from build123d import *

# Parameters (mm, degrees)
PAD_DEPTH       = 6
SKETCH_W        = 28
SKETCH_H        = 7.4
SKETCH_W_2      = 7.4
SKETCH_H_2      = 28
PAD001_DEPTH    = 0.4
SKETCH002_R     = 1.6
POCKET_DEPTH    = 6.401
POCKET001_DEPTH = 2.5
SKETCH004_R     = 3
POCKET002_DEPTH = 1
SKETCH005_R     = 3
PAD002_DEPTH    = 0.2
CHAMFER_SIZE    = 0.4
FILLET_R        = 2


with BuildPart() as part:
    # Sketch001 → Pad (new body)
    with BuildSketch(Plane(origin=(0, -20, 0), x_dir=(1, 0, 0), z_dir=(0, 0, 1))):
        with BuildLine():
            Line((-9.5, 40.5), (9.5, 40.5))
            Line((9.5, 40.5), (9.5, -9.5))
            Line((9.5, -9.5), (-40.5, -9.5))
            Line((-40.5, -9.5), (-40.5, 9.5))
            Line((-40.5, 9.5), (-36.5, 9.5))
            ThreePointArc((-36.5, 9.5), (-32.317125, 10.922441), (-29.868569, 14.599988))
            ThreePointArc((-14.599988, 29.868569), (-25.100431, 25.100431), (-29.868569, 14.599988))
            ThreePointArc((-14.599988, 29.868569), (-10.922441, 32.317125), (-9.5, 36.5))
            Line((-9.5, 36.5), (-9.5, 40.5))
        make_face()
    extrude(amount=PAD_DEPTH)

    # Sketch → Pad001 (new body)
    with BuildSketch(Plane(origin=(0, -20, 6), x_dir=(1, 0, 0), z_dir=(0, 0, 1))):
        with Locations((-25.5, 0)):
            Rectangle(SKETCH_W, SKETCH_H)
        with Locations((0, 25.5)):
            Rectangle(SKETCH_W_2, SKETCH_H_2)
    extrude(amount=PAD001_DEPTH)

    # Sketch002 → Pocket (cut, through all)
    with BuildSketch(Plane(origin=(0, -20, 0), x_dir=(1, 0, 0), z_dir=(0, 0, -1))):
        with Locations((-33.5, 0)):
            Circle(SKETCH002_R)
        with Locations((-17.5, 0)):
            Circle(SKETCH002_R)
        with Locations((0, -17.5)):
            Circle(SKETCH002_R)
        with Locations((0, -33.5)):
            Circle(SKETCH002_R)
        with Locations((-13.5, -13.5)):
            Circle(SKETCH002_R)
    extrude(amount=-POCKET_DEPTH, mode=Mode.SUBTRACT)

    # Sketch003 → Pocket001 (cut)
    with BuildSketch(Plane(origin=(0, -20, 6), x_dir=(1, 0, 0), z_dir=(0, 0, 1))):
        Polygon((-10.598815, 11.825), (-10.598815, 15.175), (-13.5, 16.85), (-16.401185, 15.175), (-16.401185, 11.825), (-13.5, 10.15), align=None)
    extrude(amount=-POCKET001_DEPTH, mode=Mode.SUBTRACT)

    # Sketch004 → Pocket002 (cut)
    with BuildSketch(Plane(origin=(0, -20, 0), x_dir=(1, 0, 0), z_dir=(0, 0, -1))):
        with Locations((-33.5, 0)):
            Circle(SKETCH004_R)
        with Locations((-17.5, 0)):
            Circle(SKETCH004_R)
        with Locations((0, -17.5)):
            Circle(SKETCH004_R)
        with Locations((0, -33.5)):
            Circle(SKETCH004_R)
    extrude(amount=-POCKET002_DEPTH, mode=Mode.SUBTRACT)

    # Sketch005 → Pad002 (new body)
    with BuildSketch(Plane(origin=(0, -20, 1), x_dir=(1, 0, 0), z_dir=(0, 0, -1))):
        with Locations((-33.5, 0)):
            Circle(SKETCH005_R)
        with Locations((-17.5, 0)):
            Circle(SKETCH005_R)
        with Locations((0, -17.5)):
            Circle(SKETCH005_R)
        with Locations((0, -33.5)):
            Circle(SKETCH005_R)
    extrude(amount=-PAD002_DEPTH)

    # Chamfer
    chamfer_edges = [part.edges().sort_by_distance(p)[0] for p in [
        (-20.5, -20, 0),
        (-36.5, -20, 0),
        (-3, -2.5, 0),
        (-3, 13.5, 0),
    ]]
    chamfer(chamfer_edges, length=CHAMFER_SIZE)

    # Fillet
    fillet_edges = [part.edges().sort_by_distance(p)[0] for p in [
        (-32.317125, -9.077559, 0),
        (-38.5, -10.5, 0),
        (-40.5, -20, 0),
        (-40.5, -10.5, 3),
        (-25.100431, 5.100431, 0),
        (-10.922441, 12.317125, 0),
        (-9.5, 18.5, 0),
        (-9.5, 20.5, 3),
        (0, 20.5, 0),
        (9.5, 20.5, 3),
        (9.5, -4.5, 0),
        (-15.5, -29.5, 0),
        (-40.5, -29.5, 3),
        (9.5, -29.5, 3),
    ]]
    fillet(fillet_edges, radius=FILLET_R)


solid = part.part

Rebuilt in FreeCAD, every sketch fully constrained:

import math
import FreeCAD as App
import Part
import Sketcher

V = App.Vector
Q = App.Units.Quantity


def edges_at(feature, points):
    """Names of the edges that pass closest to the given points."""
    edges = feature.Shape.Edges
    near = lambda p: min(range(len(edges)), key=lambda i: edges[i].distToShape(Part.Vertex(*p))[0])
    return sorted({f"Edge{near(p) + 1}" for p in points})

doc = App.newDocument("Part")
body = doc.addObject("PartDesign::Body", "Body")

sketch1 = doc.addObject("Sketcher::SketchObject", "Sketch")
body.addObject(sketch1)
sketch1.AttachmentSupport = (doc.XY_Plane, [""])
sketch1.MapMode = "FlatFace"
sketch1.addGeometry([
    Part.LineSegment(V(9.5, 20.5, 0), V(-9.5, 20.5, 0)),
    Part.LineSegment(V(-9.5, 20.5, 0), V(-9.5, 16.5, 0)),
    Part.ArcOfCircle(Part.Circle(V(-16.361362, 16.499998, 0), V(0, 0, 1), 6.861362), math.radians(-75.125118), math.radians(0.000016)),
    Part.ArcOfCircle(Part.Circle(V(-13.499998, -6.500002, 0), V(0, 0, 1), 16.40549), math.radians(93.844574), math.radians(176.155426)),
    Part.ArcOfCircle(Part.Circle(V(-36.499998, -3.638638, 0), V(0, 0, 1), 6.861362), math.radians(-90.000016), math.radians(-14.874882)),
    Part.LineSegment(V(-36.5, -10.5, 0), V(-40.5, -10.5, 0)),
    Part.LineSegment(V(-40.5, -10.5, 0), V(-40.5, -29.5, 0)),
    Part.LineSegment(V(-40.5, -29.5, 0), V(9.5, -29.5, 0)),
    Part.LineSegment(V(9.5, -29.5, 0), V(9.5, 20.5, 0)),
], False)
sketch1.addConstraint([
    Sketcher.Constraint("Coincident", 0, 2, 1, 1),
    Sketcher.Constraint("Tangent", 1, 2, 2, 2),
    Sketcher.Constraint("Coincident", 2, 1, 3, 1),
    Sketcher.Constraint("Coincident", 3, 2, 4, 2),
    Sketcher.Constraint("Tangent", 4, 1, 5, 1),
    Sketcher.Constraint("Coincident", 5, 2, 6, 1),
    Sketcher.Constraint("Coincident", 6, 2, 7, 1),
    Sketcher.Constraint("Coincident", 7, 2, 8, 1),
    Sketcher.Constraint("Coincident", 8, 2, 0, 1),
    Sketcher.Constraint("Horizontal", 0),
    Sketcher.Constraint("Vertical", 1),
    Sketcher.Constraint("Horizontal", 5),
    Sketcher.Constraint("Vertical", 6),
    Sketcher.Constraint("Horizontal", 7),
    Sketcher.Constraint("Vertical", 8),
    Sketcher.Constraint("Equal", 2, 4),
    Sketcher.Constraint("Equal", 5, 1),
    Sketcher.Constraint("Equal", 0, 6),
    Sketcher.Constraint("Equal", 7, 8),
    Sketcher.Constraint("DistanceX", 0, 2, 0, 1, 19.0),
    Sketcher.Constraint("DistanceX", 5, 2, 5, 1, 4.0),
    Sketcher.Constraint("DistanceX", 7, 1, 7, 2, 50.0),
    Sketcher.Constraint("DistanceY", 3, 3, 2, 3, 23.0),
    Sketcher.Constraint("DistanceX", 4, 3, 3, 3, 23.0),
    Sketcher.Constraint("DistanceY", -1, 1, 2, 3, 16.499998),
    Sketcher.Constraint("DistanceX", 4, 3, -1, 1, 36.499998),
    Sketcher.Constraint("Radius", 3, 16.40549),
    Sketcher.Constraint("Radius", 2, 6.861362),
])
pad1 = doc.addObject("PartDesign::Pad", "Pad")
body.addObject(pad1)
pad1.Profile = sketch1
pad1.Length = 6

sketch2 = doc.addObject("Sketcher::SketchObject", "Sketch001")
body.addObject(sketch2)
sketch2.AttachmentSupport = (doc.XY_Plane, [""])
sketch2.MapMode = "FlatFace"
sketch2.AttachmentOffset = App.Placement(V(0, 0, 6), App.Rotation())
sketch2.addGeometry([
    Part.LineSegment(V(-39.5, -16.3, 0), V(-39.5, -23.7, 0)),
    Part.LineSegment(V(-39.5, -23.7, 0), V(-11.5, -23.7, 0)),
    Part.LineSegment(V(-11.5, -23.7, 0), V(-11.5, -16.3, 0)),
    Part.LineSegment(V(-11.5, -16.3, 0), V(-39.5, -16.3, 0)),
    Part.LineSegment(V(-3.7, 19.5, 0), V(-3.7, -8.5, 0)),
    Part.LineSegment(V(-3.7, -8.5, 0), V(3.7, -8.5, 0)),
    Part.LineSegment(V(3.7, -8.5, 0), V(3.7, 19.5, 0)),
    Part.LineSegment(V(3.7, 19.5, 0), V(-3.7, 19.5, 0)),
], False)
sketch2.addConstraint([
    Sketcher.Constraint("Coincident", 0, 2, 1, 1),
    Sketcher.Constraint("Coincident", 1, 2, 2, 1),
    Sketcher.Constraint("Coincident", 2, 2, 3, 1),
    Sketcher.Constraint("Coincident", 3, 2, 0, 1),
    Sketcher.Constraint("Coincident", 4, 2, 5, 1),
    Sketcher.Constraint("Coincident", 5, 2, 6, 1),
    Sketcher.Constraint("Coincident", 6, 2, 7, 1),
    Sketcher.Constraint("Coincident", 7, 2, 4, 1),
    Sketcher.Constraint("Vertical", 0),
    Sketcher.Constraint("Horizontal", 1),
    Sketcher.Constraint("Vertical", 2),
    Sketcher.Constraint("Horizontal", 3),
    Sketcher.Constraint("Vertical", 4),
    Sketcher.Constraint("Horizontal", 5),
    Sketcher.Constraint("Vertical", 6),
    Sketcher.Constraint("Horizontal", 7),
    Sketcher.Constraint("Equal", 7, 0),
    Sketcher.Constraint("Equal", 3, 4),
    Sketcher.Constraint("DistanceX", 1, 1, 1, 2, 28.0),
    Sketcher.Constraint("DistanceX", 5, 1, 5, 2, 7.4),
    Sketcher.Constraint("DistanceX", 0, 2, -1, 1, 39.5),
    Sketcher.Constraint("DistanceY", 0, 2, -1, 1, 23.7),
    Sketcher.Constraint("DistanceX", 4, 2, -1, 1, 3.7),
    Sketcher.Constraint("DistanceY", 4, 2, -1, 1, 8.5),
])
pad2 = doc.addObject("PartDesign::Pad", "Pad001")
body.addObject(pad2)
pad2.Profile = sketch2
pad2.Length = 0.4

sketch3 = doc.addObject("Sketcher::SketchObject", "Sketch002")
body.addObject(sketch3)
sketch3.AttachmentSupport = (doc.XY_Plane, [""])
sketch3.MapMode = "FlatFace"
sketch3.addGeometry([
    Part.Circle(V(-33.5, -20, 0), V(0, 0, 1), 1.6),
    Part.Circle(V(-17.5, -20, 0), V(0, 0, 1), 1.6),
    Part.Circle(V(0, -2.5, 0), V(0, 0, 1), 1.6),
    Part.Circle(V(0, 13.5, 0), V(0, 0, 1), 1.6),
    Part.Circle(V(-13.5, -6.5, 0), V(0, 0, 1), 1.6),
], False)
sketch3.addConstraint([
    Sketcher.Constraint("Equal", 0, 1),
    Sketcher.Constraint("Equal", 1, 2),
    Sketcher.Constraint("Equal", 2, 3),
    Sketcher.Constraint("Equal", 3, 4),
    Sketcher.Constraint("PointOnObject", 2, 3, -2),
    Sketcher.Constraint("PointOnObject", 3, 3, -2),
    Sketcher.Constraint("Horizontal", 0, 3, 1, 3),
    Sketcher.Constraint("Diameter", 0, 3.2),
    Sketcher.Constraint("DistanceY", 0, 3, -1, 1, 20.0),
    Sketcher.Constraint("DistanceX", 0, 3, 1, 3, 16.0),
    Sketcher.Constraint("DistanceY", 2, 3, 3, 3, 16.0),
    Sketcher.Constraint("DistanceX", 1, 3, 4, 3, 4.0),
    Sketcher.Constraint("DistanceY", 4, 3, 2, 3, 4.0),
    Sketcher.Constraint("DistanceX", 0, 3, -1, 1, 33.5),
    Sketcher.Constraint("DistanceY", 2, 3, -1, 1, 2.5),
])
pocket1 = doc.addObject("PartDesign::Pocket", "Pocket")
body.addObject(pocket1)
pocket1.Profile = sketch3
pocket1.Type = "ThroughAll"
pocket1.Reversed = True

sketch4 = doc.addObject("Sketcher::SketchObject", "Sketch003")
body.addObject(sketch4)
sketch4.AttachmentSupport = (doc.XY_Plane, [""])
sketch4.MapMode = "FlatFace"
sketch4.AttachmentOffset = App.Placement(V(0, 0, 6), App.Rotation())
sketch4.addGeometry([
    Part.LineSegment(V(-10.598815, -8.175, 0), V(-10.598815, -4.825, 0)),
    Part.LineSegment(V(-10.598815, -4.825, 0), V(-13.5, -3.15, 0)),
    Part.LineSegment(V(-13.5, -3.15, 0), V(-16.401185, -4.825, 0)),
    Part.LineSegment(V(-16.401185, -4.825, 0), V(-16.401185, -8.175, 0)),
    Part.LineSegment(V(-16.401185, -8.175, 0), V(-13.5, -9.85, 0)),
    Part.LineSegment(V(-13.5, -9.85, 0), V(-10.598815, -8.175, 0)),
], False)
sketch4.addConstraint([
    Sketcher.Constraint("Coincident", 0, 2, 1, 1),
    Sketcher.Constraint("Coincident", 1, 2, 2, 1),
    Sketcher.Constraint("Coincident", 2, 2, 3, 1),
    Sketcher.Constraint("Coincident", 3, 2, 4, 1),
    Sketcher.Constraint("Coincident", 4, 2, 5, 1),
    Sketcher.Constraint("Coincident", 5, 2, 0, 1),
    Sketcher.Constraint("Vertical", 0),
    Sketcher.Constraint("Vertical", 3),
    Sketcher.Constraint("Parallel", 1, 4),
    Sketcher.Constraint("Parallel", 2, 5),
    Sketcher.Constraint("Horizontal", 0, 2, 2, 2),
    Sketcher.Constraint("Horizontal", 3, 2, 5, 2),
    Sketcher.Constraint("Vertical", 1, 2, 4, 2),
    Sketcher.Constraint("Angle", 1, Q("149.999999 deg")),
    Sketcher.Constraint("DistanceY", 0, 1, 0, 2, 3.35),
    Sketcher.Constraint("DistanceX", 1, 2, -1, 1, 13.5),
    Sketcher.Constraint("DistanceY", 4, 2, 1, 2, 6.7),
    Sketcher.Constraint("DistanceY", 1, 2, -1, 1, 3.15),
])
pocket2 = doc.addObject("PartDesign::Pocket", "Pocket001")
body.addObject(pocket2)
pocket2.Profile = sketch4
pocket2.Length = 2.5

sketch5 = doc.addObject("Sketcher::SketchObject", "Sketch004")
body.addObject(sketch5)
sketch5.AttachmentSupport = (doc.XY_Plane, [""])
sketch5.MapMode = "FlatFace"
sketch5.addGeometry([
    Part.Circle(V(-33.5, -20, 0), V(0, 0, 1), 3),
    Part.Circle(V(-17.5, -20, 0), V(0, 0, 1), 3),
    Part.Circle(V(0, -2.5, 0), V(0, 0, 1), 3),
    Part.Circle(V(0, 13.5, 0), V(0, 0, 1), 3),
], False)
sketch5.addConstraint([
    Sketcher.Constraint("Equal", 0, 1),
    Sketcher.Constraint("Equal", 1, 2),
    Sketcher.Constraint("Equal", 2, 3),
    Sketcher.Constraint("PointOnObject", 2, 3, -2),
    Sketcher.Constraint("PointOnObject", 3, 3, -2),
    Sketcher.Constraint("Horizontal", 0, 3, 1, 3),
    Sketcher.Constraint("Diameter", 0, 6.0),
    Sketcher.Constraint("DistanceY", 0, 3, -1, 1, 20.0),
    Sketcher.Constraint("DistanceX", 0, 3, 1, 3, 16.0),
    Sketcher.Constraint("DistanceY", 2, 3, 3, 3, 16.0),
    Sketcher.Constraint("DistanceX", 0, 3, -1, 1, 33.5),
    Sketcher.Constraint("DistanceY", 2, 3, -1, 1, 2.5),
])
pocket3 = doc.addObject("PartDesign::Pocket", "Pocket002")
body.addObject(pocket3)
pocket3.Profile = sketch5
pocket3.Length = 1
pocket3.Reversed = True

sketch6 = doc.addObject("Sketcher::SketchObject", "Sketch005")
body.addObject(sketch6)
sketch6.AttachmentSupport = (doc.XY_Plane, [""])
sketch6.MapMode = "FlatFace"
sketch6.AttachmentOffset = App.Placement(V(0, 0, 1), App.Rotation())
sketch6.addGeometry([
    Part.Circle(V(-33.5, -20, 0), V(0, 0, 1), 3),
    Part.Circle(V(-17.5, -20, 0), V(0, 0, 1), 3),
    Part.Circle(V(0, -2.5, 0), V(0, 0, 1), 3),
    Part.Circle(V(0, 13.5, 0), V(0, 0, 1), 3),
], False)
sketch6.addConstraint([
    Sketcher.Constraint("Equal", 0, 1),
    Sketcher.Constraint("Equal", 1, 2),
    Sketcher.Constraint("Equal", 2, 3),
    Sketcher.Constraint("PointOnObject", 2, 3, -2),
    Sketcher.Constraint("PointOnObject", 3, 3, -2),
    Sketcher.Constraint("Horizontal", 0, 3, 1, 3),
    Sketcher.Constraint("Diameter", 0, 6.0),
    Sketcher.Constraint("DistanceY", 0, 3, -1, 1, 20.0),
    Sketcher.Constraint("DistanceX", 0, 3, 1, 3, 16.0),
    Sketcher.Constraint("DistanceY", 2, 3, 3, 3, 16.0),
    Sketcher.Constraint("DistanceX", 0, 3, -1, 1, 33.5),
    Sketcher.Constraint("DistanceY", 2, 3, -1, 1, 2.5),
])
pad3 = doc.addObject("PartDesign::Pad", "Pad002")
body.addObject(pad3)
pad3.Profile = sketch6
pad3.Length = 0.2
doc.recompute()

chamfer = doc.addObject("PartDesign::Chamfer", "Chamfer")
body.addObject(chamfer)
chamfer.Base = (pad3, edges_at(pad3, [
    (-20.5, -20, 0),
    (-36.5, -20, 0),
    (-3, -2.5, 0),
    (-3, 13.5, 0),
]))
chamfer.Size = 0.4
doc.recompute()

fillet = doc.addObject("PartDesign::Fillet", "Fillet")
body.addObject(fillet)
fillet.Base = (chamfer, edges_at(chamfer, [
    (-32.317, -9.078, 0),
    (-38.5, -10.5, 0),
    (-40.5, -20, 0),
    (-40.5, -10.5, 3),
    (-25.1, 5.1, 0),
    (-10.922, 12.317, 0),
    (-9.5, 18.5, 0),
    (-9.5, 20.5, 3),
    (0, 20.5, 0),
    (9.5, 20.5, 3),
    (9.5, -4.5, 0),
    (-15.5, -29.5, 0),
    (-40.5, -29.5, 3),
    (9.5, -29.5, 3),
]))
fillet.Radius = 2

doc.recompute()
